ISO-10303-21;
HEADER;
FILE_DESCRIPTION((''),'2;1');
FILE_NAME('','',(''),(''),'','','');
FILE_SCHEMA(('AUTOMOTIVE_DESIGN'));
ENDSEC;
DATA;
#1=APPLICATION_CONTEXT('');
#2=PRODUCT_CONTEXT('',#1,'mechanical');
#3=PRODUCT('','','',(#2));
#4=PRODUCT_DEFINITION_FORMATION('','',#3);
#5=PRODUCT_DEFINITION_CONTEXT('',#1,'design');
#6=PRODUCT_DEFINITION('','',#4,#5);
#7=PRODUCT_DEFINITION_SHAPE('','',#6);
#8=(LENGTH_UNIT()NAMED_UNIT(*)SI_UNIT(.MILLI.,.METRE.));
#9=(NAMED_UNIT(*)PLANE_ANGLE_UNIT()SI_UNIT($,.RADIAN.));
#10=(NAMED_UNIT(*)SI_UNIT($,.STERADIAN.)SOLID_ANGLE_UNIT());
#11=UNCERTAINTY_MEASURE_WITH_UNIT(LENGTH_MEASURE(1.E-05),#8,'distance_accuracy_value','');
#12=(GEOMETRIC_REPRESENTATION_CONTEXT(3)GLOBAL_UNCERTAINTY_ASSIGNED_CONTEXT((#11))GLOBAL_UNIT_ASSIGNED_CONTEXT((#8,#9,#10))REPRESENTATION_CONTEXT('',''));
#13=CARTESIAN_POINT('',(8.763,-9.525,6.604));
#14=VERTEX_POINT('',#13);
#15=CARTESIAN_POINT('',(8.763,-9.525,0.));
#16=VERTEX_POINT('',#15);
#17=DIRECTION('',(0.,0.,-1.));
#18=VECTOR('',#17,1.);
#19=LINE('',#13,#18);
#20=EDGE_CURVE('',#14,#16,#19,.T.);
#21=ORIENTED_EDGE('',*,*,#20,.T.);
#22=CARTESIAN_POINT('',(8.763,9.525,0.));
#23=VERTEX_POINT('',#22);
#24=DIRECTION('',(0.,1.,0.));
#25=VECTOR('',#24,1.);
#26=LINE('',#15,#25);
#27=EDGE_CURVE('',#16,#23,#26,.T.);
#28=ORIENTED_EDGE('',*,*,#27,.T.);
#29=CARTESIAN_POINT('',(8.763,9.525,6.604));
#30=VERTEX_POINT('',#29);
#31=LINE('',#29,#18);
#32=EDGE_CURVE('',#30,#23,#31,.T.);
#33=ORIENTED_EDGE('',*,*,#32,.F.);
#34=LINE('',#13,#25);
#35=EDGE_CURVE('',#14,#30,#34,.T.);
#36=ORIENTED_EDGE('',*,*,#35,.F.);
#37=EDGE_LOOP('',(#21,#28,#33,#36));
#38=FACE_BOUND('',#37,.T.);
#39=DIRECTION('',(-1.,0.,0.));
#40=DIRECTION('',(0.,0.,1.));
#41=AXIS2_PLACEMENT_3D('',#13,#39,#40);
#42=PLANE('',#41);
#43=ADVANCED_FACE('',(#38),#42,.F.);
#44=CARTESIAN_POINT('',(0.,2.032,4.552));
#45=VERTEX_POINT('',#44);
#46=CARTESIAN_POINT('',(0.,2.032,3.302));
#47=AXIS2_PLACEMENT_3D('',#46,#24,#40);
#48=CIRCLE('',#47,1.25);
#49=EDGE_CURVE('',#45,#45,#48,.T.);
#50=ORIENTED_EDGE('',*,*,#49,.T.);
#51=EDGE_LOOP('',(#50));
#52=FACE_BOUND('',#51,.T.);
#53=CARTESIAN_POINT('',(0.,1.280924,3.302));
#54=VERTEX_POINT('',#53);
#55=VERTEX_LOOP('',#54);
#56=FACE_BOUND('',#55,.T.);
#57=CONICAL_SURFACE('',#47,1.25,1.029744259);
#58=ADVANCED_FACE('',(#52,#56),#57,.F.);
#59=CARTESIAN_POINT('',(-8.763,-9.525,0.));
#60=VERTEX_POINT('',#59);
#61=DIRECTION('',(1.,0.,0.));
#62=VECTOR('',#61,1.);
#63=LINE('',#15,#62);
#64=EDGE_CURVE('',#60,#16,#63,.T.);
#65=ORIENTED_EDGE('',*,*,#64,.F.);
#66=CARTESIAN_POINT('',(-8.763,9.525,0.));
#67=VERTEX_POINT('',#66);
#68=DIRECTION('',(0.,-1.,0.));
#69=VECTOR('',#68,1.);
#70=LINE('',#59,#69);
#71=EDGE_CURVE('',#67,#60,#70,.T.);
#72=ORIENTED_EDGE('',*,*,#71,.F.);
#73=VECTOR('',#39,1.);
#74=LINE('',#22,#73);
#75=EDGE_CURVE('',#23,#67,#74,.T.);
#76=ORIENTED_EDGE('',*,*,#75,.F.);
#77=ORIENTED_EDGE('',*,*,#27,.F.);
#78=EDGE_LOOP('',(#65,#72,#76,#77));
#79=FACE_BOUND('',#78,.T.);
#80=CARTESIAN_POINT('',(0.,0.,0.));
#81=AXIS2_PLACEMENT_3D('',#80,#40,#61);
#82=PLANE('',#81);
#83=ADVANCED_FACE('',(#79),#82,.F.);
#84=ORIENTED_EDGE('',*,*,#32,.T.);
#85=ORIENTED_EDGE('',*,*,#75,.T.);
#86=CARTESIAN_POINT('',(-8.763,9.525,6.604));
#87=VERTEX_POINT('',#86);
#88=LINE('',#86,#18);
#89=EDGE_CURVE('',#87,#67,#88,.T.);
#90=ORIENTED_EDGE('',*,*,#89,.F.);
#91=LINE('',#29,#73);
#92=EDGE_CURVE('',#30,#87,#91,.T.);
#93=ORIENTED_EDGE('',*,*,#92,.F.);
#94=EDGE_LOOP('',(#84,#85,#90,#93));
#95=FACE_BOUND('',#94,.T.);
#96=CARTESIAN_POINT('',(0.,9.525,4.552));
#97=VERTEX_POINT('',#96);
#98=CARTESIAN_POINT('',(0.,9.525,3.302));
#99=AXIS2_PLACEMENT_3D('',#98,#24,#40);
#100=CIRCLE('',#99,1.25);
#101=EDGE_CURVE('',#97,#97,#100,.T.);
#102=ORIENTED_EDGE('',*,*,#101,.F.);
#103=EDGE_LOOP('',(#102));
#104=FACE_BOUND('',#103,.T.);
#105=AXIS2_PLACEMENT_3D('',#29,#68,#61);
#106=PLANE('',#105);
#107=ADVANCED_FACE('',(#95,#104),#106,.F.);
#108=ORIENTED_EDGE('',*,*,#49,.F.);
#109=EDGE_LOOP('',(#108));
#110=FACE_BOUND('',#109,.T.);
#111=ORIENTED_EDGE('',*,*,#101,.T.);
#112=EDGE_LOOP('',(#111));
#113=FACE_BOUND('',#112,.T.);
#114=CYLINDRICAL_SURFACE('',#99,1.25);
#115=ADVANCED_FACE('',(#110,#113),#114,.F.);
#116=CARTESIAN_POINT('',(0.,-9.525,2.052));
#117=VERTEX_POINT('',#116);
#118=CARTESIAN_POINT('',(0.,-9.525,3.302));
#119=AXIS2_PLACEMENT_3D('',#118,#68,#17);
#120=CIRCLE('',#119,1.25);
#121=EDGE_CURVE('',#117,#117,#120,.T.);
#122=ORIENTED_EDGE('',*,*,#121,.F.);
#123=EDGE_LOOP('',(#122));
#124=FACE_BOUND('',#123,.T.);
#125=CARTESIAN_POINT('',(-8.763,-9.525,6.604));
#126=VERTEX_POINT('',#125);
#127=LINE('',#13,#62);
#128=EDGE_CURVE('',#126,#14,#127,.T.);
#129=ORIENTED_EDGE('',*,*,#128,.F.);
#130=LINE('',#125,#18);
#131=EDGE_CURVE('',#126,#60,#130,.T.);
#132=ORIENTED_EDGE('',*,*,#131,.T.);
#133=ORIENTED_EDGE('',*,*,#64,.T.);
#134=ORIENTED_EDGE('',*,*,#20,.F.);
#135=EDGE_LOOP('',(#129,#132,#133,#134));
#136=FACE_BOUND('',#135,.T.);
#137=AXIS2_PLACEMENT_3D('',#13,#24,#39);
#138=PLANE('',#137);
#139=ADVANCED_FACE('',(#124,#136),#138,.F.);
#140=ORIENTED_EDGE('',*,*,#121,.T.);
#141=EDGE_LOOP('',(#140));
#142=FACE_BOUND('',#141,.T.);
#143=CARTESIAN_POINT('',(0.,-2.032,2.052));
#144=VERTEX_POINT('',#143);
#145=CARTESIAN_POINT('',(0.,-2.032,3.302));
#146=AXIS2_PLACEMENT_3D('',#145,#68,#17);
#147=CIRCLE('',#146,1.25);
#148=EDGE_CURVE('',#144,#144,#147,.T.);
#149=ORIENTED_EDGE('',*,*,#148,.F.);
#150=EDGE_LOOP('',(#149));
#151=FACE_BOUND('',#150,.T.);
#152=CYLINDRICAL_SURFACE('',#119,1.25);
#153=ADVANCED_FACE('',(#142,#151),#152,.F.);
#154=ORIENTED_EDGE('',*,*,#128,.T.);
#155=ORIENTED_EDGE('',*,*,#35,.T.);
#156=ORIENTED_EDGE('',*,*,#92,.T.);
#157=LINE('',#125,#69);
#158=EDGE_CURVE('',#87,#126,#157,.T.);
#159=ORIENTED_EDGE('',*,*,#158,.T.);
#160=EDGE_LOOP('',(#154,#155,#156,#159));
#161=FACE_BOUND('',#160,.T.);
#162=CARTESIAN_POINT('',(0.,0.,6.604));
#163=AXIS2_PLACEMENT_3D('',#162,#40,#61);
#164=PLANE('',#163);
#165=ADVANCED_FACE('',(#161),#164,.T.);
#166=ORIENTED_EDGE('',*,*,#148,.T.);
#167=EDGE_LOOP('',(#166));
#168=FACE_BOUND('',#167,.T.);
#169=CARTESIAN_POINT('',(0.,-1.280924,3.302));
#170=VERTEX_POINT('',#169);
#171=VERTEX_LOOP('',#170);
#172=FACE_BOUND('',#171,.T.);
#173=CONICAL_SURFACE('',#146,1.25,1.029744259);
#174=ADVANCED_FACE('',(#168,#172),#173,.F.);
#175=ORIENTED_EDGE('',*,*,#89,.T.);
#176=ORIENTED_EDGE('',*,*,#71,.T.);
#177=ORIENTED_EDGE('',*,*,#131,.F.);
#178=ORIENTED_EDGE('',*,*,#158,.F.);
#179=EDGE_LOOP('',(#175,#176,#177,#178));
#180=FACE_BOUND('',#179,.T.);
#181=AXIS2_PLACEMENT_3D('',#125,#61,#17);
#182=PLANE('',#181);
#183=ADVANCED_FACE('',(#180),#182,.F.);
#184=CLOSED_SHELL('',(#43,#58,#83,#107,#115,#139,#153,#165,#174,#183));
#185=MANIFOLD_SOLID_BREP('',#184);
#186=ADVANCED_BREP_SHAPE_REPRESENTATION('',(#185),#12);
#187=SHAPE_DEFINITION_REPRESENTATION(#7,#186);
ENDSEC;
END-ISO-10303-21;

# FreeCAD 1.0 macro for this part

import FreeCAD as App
import Part
import Sketcher
Q = App.Units.Quantity


def add_polygon(sketch, points):
    """Adds a closed chain of lines whose ends are joined by coincident constraints."""
    first, n = sketch.GeometryCount, len(points)
    for a, b in zip(points, points[1:] + points[:1]):
        sketch.addGeometry(Part.LineSegment(App.Vector(*a, 0), App.Vector(*b, 0)), False)
    for i in range(n):
        sketch.addConstraint(Sketcher.Constraint("Coincident", first + i, 2, first + (i + 1) % n, 1))

doc = App.newDocument("Part")
body = doc.addObject("PartDesign::Body", "Body")

# Sketch on XY plane
sketch1 = body.newObject("Sketcher::SketchObject", "Sketch")
sketch1.AttachmentSupport = (doc.getObject("XY_Plane"), [""])
sketch1.MapMode = "FlatFace"
add_polygon(sketch1, [(-9, 10), (-9, -10), (9, -10), (9, 10)])  # lines 0-3
sketch1.addConstraint([
    Sketcher.Constraint("Vertical", 0),
    Sketcher.Constraint("Horizontal", 1),
    Sketcher.Constraint("Vertical", 2),
    Sketcher.Constraint("Horizontal", 3),
    Sketcher.Constraint("Symmetric", 0, 2, 2, 2, -1, 1),
    Sketcher.Constraint("DistanceX", 1, 1, 1, 2, Q("0.69 in")),
    Sketcher.Constraint("DistanceY", 0, 2, 0, 1, Q("0.75 in")),
])
pad1 = body.newObject("PartDesign::Pad", "Pad")
pad1.Profile = sketch1
pad1.Length = Q("0.26 in")

# Sketch on XZ plane
sketch2 = body.newObject("Sketcher::SketchObject", "Sketch001")
sketch2.AttachmentSupport = (doc.getObject("XZ_Plane"), [""])
sketch2.MapMode = "FlatFace"
sketch2.AttachmentOffset = App.Placement(App.Vector(0, 0, -0.375 * 25.4), App.Rotation())
sketch2.addGeometry(Part.Circle(App.Vector(0, 3.3, 0), App.Vector(0, 0, 1), 1.2), False)
sketch2.addConstraint([
    Sketcher.Constraint("PointOnObject", 0, 3, -2),
    Sketcher.Constraint("Diameter", 0, Q("2.5 mm")),
    Sketcher.Constraint("DistanceY", -1, 1, 0, 3, Q("0.13 in")),
])
doc.recompute()
hole = body.newObject("PartDesign::Hole", "Hole")
hole.Profile = sketch2
hole.ThreadType = "None"
hole.Diameter = 2.5
hole.DepthType = "Dimension"
hole.Depth = Q("0.295 in")
hole.DrillPoint = "Angled"
hole.DrillPointAngle = 118
hole.Reversed = True

# Sketch on XZ plane
sketch3 = body.newObject("Sketcher::SketchObject", "Sketch002")
sketch3.AttachmentSupport = (doc.getObject("XZ_Plane"), [""])
sketch3.MapMode = "FlatFace"
sketch3.AttachmentOffset = App.Placement(App.Vector(0, 0, 0.375 * 25.4), App.Rotation())
sketch3.addGeometry(Part.Circle(App.Vector(0, 3.3, 0), App.Vector(0, 0, 1), 1.2), False)
sketch3.addConstraint([
    Sketcher.Constraint("PointOnObject", 0, 3, -2),
    Sketcher.Constraint("Diameter", 0, Q("2.5 mm")),
    Sketcher.Constraint("DistanceY", -1, 1, 0, 3, Q("0.13 in")),
])
doc.recompute()
hole2 = body.newObject("PartDesign::Hole", "Hole001")
hole2.Profile = sketch3
hole2.ThreadType = "None"
hole2.Diameter = 2.5
hole2.DepthType = "Dimension"
hole2.Depth = Q("0.295 in")
hole2.DrillPoint = "Angled"
hole2.DrillPointAngle = 118

doc.recompute()
